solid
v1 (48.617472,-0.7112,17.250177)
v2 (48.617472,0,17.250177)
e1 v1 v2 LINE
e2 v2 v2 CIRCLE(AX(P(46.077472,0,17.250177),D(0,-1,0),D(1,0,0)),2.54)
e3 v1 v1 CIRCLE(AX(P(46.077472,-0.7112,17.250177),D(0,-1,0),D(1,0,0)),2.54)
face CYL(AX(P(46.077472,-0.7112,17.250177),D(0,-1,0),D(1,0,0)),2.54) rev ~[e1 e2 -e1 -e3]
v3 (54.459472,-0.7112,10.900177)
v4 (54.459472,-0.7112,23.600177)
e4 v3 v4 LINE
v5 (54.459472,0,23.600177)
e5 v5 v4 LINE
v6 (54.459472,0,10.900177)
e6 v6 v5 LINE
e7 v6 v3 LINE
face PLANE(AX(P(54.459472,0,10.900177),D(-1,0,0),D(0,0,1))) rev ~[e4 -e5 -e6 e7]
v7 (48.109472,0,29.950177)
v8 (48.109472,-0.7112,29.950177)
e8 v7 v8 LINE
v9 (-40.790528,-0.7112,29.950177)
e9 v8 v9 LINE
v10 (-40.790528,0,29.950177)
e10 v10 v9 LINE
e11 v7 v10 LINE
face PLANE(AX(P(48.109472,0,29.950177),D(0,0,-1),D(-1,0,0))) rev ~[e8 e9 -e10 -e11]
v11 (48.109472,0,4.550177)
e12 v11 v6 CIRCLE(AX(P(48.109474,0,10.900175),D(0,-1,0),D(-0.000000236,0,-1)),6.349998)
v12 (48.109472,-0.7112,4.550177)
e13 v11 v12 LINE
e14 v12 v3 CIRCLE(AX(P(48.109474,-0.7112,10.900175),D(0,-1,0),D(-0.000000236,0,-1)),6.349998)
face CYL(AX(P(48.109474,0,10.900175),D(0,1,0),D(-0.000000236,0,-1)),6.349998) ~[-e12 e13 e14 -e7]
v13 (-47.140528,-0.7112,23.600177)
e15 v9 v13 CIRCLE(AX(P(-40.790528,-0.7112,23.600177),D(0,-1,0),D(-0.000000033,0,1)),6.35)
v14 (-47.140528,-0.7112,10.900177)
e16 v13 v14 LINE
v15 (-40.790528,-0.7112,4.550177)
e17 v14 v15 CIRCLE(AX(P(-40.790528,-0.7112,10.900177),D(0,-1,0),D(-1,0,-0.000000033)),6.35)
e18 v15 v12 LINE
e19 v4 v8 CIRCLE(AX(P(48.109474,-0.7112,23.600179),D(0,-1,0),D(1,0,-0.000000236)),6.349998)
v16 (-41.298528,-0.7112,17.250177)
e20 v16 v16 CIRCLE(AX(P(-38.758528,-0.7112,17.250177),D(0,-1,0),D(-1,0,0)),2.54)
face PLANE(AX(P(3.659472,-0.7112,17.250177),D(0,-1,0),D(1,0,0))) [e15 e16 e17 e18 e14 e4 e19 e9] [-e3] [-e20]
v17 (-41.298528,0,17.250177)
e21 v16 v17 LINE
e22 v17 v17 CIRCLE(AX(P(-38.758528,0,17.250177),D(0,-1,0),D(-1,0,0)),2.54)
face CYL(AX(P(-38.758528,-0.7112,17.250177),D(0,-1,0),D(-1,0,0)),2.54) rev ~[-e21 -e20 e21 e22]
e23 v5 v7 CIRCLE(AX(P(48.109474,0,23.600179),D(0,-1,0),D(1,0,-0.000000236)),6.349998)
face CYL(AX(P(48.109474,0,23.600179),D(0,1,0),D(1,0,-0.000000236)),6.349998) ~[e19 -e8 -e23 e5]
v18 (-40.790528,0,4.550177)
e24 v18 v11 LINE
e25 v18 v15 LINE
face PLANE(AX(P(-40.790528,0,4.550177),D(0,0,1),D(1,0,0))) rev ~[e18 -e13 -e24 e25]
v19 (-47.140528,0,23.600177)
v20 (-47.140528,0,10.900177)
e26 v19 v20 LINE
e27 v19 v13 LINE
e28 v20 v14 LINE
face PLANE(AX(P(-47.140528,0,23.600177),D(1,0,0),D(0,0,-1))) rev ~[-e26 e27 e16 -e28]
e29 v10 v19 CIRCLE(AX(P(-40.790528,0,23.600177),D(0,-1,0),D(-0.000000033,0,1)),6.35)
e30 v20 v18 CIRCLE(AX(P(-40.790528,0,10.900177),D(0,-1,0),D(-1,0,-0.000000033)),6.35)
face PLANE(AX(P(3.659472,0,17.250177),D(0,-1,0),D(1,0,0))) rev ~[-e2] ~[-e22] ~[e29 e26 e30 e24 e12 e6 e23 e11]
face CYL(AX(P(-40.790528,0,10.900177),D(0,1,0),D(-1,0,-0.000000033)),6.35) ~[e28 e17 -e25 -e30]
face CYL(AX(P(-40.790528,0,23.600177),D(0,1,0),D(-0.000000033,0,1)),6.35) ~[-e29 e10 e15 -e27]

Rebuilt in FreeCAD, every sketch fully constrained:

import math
import FreeCAD as App
import Part
import Sketcher

V = App.Vector
Q = App.Units.Quantity

doc = App.newDocument("Part")
body = doc.addObject("PartDesign::Body", "Body")

# Sketch on XZ plane
sketch1 = doc.addObject("Sketcher::SketchObject", "Sketch")
body.addObject(sketch1)
sketch1.AttachmentSupport = (doc.XZ_Plane, [""])
sketch1.MapMode = "FlatFace"
sketch1.addGeometry([
    Part.LineSegment(V(48, 30, 0), V(-41, 30, 0)),  # 0
    Part.ArcOfCircle(Part.Circle(V(-41, 24, 0), V(0, 0, 1), 6), math.radians(90), math.radians(180)),  # 1
    Part.LineSegment(V(-47, 24, 0), V(-47, 11, 0)),  # 2
    Part.ArcOfCircle(Part.Circle(V(-41, 11, 0), V(0, 0, 1), 6), math.radians(-180), math.radians(-90)),  # 3
    Part.LineSegment(V(-41, 5, 0), V(48, 5, 0)),  # 4
    Part.ArcOfCircle(Part.Circle(V(48, 11, 0), V(0, 0, 1), 6), math.radians(-90), math.radians(0)),  # 5
    Part.LineSegment(V(54, 11, 0), V(54, 24, 0)),  # 6
    Part.ArcOfCircle(Part.Circle(V(48, 24, 0), V(0, 0, 1), 6), math.radians(0), math.radians(90)),  # 7
], False)
sketch1.addConstraint([
    Sketcher.Constraint("Tangent", 0, 2, 1, 1),
    Sketcher.Constraint("Tangent", 1, 2, 2, 1),
    Sketcher.Constraint("Tangent", 2, 2, 3, 1),
    Sketcher.Constraint("Tangent", 3, 2, 4, 1),
    Sketcher.Constraint("Tangent", 4, 2, 5, 1),
    Sketcher.Constraint("Tangent", 5, 2, 6, 1),
    Sketcher.Constraint("Tangent", 6, 2, 7, 1),
    Sketcher.Constraint("Tangent", 7, 2, 0, 1),
    Sketcher.Constraint("Horizontal", 0),
    Sketcher.Constraint("Vertical", 2),
    Sketcher.Constraint("Horizontal", 4),
    Sketcher.Constraint("Vertical", 6),
    Sketcher.Constraint("Equal", 1, 3),
    Sketcher.Constraint("Equal", 3, 5),
    Sketcher.Constraint("Equal", 5, 7),
    Sketcher.Constraint("Radius", 1, Q("0.25 in")),
    Sketcher.Constraint("DistanceX", 0, 2, 0, 1, Q("3.5 in")),
    Sketcher.Constraint("DistanceY", 2, 2, 2, 1, Q("0.5 in")),
    Sketcher.Constraint("DistanceY", -1, 1, 7, 3, Q("23.600178 mm")),
    Sketcher.Constraint("DistanceX", 0, 2, -1, 1, Q("40.790528 mm")),
])
pad1 = doc.addObject("PartDesign::Pad", "Pad")
body.addObject(pad1)
pad1.Profile = sketch1
pad1.Length = Q("0.028 in")

# Sketch on XZ plane
sketch2 = doc.addObject("Sketcher::SketchObject", "Sketch001")
body.addObject(sketch2)
sketch2.AttachmentSupport = (doc.XZ_Plane, [""])
sketch2.MapMode = "FlatFace"
sketch2.AttachmentOffset = App.Placement(V(0, 0, 0.028 * 25.4), App.Rotation())
sketch2.addGeometry([
    Part.Circle(V(-38.8, 17.3, 0), V(0, 0, 1), 2.5),
    Part.Circle(V(46.1, 17.3, 0), V(0, 0, 1), 2.5),
], False)
sketch2.addConstraint([
    Sketcher.Constraint("Equal", 0, 1),
    Sketcher.Constraint("Horizontal", 0, 3, 1, 3),
    Sketcher.Constraint("Diameter", 0, Q("0.2 in")),
    Sketcher.Constraint("DistanceX", 0, 3, 1, 3, Q("3.34 in")),
    Sketcher.Constraint("DistanceX", 0, 3, -1, 1, Q("38.758528 mm")),
    Sketcher.Constraint("DistanceY", -1, 1, 0, 3, Q("17.250177 mm")),
])
pocket1 = doc.addObject("PartDesign::Pocket", "Pocket")
body.addObject(pocket1)
pocket1.Profile = sketch2
pocket1.Length = Q("1 in")

doc.recompute()
